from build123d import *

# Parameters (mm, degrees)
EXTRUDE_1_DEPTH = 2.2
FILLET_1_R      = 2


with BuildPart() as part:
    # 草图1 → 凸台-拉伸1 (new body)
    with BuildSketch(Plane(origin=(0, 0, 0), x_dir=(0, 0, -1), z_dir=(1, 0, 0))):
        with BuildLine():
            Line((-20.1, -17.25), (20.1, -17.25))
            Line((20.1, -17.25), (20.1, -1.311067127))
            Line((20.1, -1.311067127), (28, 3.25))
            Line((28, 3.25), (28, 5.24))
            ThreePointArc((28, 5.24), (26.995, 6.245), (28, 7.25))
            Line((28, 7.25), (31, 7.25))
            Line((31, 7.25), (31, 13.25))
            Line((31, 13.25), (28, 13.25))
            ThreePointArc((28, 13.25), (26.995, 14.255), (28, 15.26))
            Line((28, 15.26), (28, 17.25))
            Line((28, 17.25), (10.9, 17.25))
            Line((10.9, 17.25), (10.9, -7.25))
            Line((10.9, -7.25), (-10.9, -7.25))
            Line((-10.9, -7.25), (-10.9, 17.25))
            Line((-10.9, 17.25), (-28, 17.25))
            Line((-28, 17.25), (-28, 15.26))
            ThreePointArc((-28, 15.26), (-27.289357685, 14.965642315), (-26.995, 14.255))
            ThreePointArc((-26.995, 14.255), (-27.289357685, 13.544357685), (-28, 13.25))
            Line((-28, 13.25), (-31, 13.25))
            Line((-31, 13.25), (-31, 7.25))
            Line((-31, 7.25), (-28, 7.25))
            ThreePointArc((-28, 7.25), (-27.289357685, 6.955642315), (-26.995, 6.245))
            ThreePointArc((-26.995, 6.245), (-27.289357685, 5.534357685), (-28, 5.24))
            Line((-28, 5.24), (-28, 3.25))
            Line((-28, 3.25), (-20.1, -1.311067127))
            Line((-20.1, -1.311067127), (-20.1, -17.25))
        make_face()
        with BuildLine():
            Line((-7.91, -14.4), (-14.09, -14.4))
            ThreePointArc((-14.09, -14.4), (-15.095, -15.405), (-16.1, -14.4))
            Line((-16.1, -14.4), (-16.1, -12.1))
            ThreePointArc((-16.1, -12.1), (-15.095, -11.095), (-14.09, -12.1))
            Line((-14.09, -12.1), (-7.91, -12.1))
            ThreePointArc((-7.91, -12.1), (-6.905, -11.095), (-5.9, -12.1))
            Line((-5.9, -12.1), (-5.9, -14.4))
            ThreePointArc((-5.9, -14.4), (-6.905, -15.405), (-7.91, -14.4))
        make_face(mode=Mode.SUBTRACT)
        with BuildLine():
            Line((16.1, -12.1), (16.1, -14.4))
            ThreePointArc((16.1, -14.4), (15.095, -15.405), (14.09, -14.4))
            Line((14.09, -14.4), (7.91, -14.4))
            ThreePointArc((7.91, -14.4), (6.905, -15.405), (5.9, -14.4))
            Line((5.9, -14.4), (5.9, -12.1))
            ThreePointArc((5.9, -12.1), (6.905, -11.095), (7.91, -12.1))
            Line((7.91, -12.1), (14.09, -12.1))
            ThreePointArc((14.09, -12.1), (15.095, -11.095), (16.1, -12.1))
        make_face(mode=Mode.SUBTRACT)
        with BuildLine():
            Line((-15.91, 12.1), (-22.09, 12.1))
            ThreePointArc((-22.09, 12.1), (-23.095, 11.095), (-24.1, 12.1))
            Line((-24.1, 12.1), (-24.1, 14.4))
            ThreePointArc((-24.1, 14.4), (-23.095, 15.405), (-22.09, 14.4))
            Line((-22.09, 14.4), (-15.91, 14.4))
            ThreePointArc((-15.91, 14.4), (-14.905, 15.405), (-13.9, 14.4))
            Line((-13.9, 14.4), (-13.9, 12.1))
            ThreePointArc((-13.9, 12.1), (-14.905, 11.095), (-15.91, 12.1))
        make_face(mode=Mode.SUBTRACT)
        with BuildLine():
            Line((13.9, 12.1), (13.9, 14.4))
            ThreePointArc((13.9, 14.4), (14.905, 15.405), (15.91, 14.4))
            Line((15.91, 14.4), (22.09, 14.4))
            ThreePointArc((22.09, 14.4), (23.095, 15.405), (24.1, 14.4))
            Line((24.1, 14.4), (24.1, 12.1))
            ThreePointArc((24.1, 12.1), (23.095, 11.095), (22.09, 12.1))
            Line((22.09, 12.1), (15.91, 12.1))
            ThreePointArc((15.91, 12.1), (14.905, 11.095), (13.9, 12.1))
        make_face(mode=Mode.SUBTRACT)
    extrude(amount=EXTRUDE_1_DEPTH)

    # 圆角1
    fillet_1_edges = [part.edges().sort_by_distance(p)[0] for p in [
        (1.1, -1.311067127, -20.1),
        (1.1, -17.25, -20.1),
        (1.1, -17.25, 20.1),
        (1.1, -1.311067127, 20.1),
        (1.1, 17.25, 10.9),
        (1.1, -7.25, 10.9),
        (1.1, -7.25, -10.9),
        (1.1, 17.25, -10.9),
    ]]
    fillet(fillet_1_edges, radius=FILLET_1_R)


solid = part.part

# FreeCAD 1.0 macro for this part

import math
import FreeCAD as App
import Part
import Sketcher
from FreeCAD import Vector
Q = App.Units.Quantity


def edges_at(feature, points):
    """Names of the edges that pass closest to the given points."""
    edges = feature.Shape.Edges
    near = lambda p: min(range(len(edges)), key=lambda i: edges[i].distToShape(Part.Vertex(*p))[0])
    return sorted({f"Edge{near(p) + 1}" for p in points})

doc = App.newDocument("Part")
body = doc.addObject("PartDesign::Body", "Body")

# Sketch on YZ plane
sketch1 = body.newObject("Sketcher::SketchObject", "Sketch")
sketch1.AttachmentSupport = (doc.getObject("YZ_Plane"), [""])
sketch1.MapMode = "FlatFace"
sketch1.addGeometry([
    Part.LineSegment(Vector(-17.25, 20.1, 0), Vector(-17.25, -20.1, 0)),  # 0
    Part.LineSegment(Vector(-17.25, -20.1, 0), Vector(-1.311067, -20.1, 0)),  # 1
    Part.LineSegment(Vector(-1.311067, -20.1, 0), Vector(3.25, -28, 0)),  # 2
    Part.LineSegment(Vector(3.25, -28, 0), Vector(5.24, -28, 0)),  # 3
    Part.ArcOfCircle(Part.Circle(Vector(6.245, -28, 0), Vector(0, 0, 1), 1.005), math.radians(0), math.radians(180)),  # 4
    Part.LineSegment(Vector(7.25, -28, 0), Vector(7.25, -31, 0)),  # 5
    Part.LineSegment(Vector(7.25, -31, 0), Vector(13.25, -31, 0)),  # 6
    Part.LineSegment(Vector(13.25, -31, 0), Vector(13.25, -28, 0)),  # 7
    Part.ArcOfCircle(Part.Circle(Vector(14.255, -28, 0), Vector(0, 0, 1), 1.005), math.radians(0), math.radians(180)),  # 8
    Part.LineSegment(Vector(15.26, -28, 0), Vector(17.25, -28, 0)),  # 9
    Part.LineSegment(Vector(17.25, -28, 0), Vector(17.25, -10.9, 0)),  # 10
    Part.LineSegment(Vector(17.25, -10.9, 0), Vector(-7.25, -10.9, 0)),  # 11
    Part.LineSegment(Vector(-7.25, -10.9, 0), Vector(-7.25, 10.9, 0)),  # 12
    Part.LineSegment(Vector(-7.25, 10.9, 0), Vector(17.25, 10.9, 0)),  # 13
    Part.LineSegment(Vector(17.25, 10.9, 0), Vector(17.25, 28, 0)),  # 14
    Part.LineSegment(Vector(17.25, 28, 0), Vector(15.26, 28, 0)),  # 15
    Part.ArcOfCircle(Part.Circle(Vector(14.255, 28, 0), Vector(0, 0, 1), 1.005), math.radians(-90), math.radians(0)),  # 16
    Part.ArcOfCircle(Part.Circle(Vector(14.255, 28, 0), Vector(0, 0, 1), 1.005), math.radians(180), math.radians(270)),  # 17
    Part.LineSegment(Vector(13.25, 28, 0), Vector(13.25, 31, 0)),  # 18
    Part.LineSegment(Vector(13.25, 31, 0), Vector(7.25, 31, 0)),  # 19
    Part.LineSegment(Vector(7.25, 31, 0), Vector(7.25, 28, 0)),  # 20
    Part.ArcOfCircle(Part.Circle(Vector(6.245, 28, 0), Vector(0, 0, 1), 1.005), math.radians(-90), math.radians(0)),  # 21
    Part.ArcOfCircle(Part.Circle(Vector(6.245, 28, 0), Vector(0, 0, 1), 1.005), math.radians(180), math.radians(270)),  # 22
    Part.LineSegment(Vector(5.24, 28, 0), Vector(3.25, 28, 0)),  # 23
    Part.LineSegment(Vector(3.25, 28, 0), Vector(-1.311067, 20.1, 0)),  # 24
    Part.LineSegment(Vector(-1.311067, 20.1, 0), Vector(-17.25, 20.1, 0)),  # 25
    Part.ArcOfCircle(Part.Circle(Vector(-14.4, 6.905, 0), Vector(0, 0, 1), 1.005), math.radians(90), math.radians(270)),  # 26
    Part.LineSegment(Vector(-14.4, 7.91, 0), Vector(-14.4, 14.09, 0)),  # 27
    Part.ArcOfCircle(Part.Circle(Vector(-14.4, 15.095, 0), Vector(0, 0, 1), 1.005), math.radians(90), math.radians(270)),  # 28
    Part.LineSegment(Vector(-14.4, 16.1, 0), Vector(-12.1, 16.1, 0)),  # 29
    Part.ArcOfCircle(Part.Circle(Vector(-12.1, 15.095, 0), Vector(0, 0, 1), 1.005), math.radians(-90), math.radians(90)),  # 30
    Part.LineSegment(Vector(-12.1, 14.09, 0), Vector(-12.1, 7.91, 0)),  # 31
    Part.ArcOfCircle(Part.Circle(Vector(-12.1, 6.905, 0), Vector(0, 0, 1), 1.005), math.radians(-90), math.radians(90)),  # 32
    Part.LineSegment(Vector(-12.1, 5.9, 0), Vector(-14.4, 5.9, 0)),  # 33
    Part.ArcOfCircle(Part.Circle(Vector(-12.1, -15.095, 0), Vector(0, 0, 1), 1.005), math.radians(-90), math.radians(90)),  # 34
    Part.LineSegment(Vector(-12.1, -16.1, 0), Vector(-14.4, -16.1, 0)),  # 35
    Part.ArcOfCircle(Part.Circle(Vector(-14.4, -15.095, 0), Vector(0, 0, 1), 1.005), math.radians(90), math.radians(270)),  # 36
    Part.LineSegment(Vector(-14.4, -14.09, 0), Vector(-14.4, -7.91, 0)),  # 37
    Part.ArcOfCircle(Part.Circle(Vector(-14.4, -6.905, 0), Vector(0, 0, 1), 1.005), math.radians(90), math.radians(270)),  # 38
    Part.LineSegment(Vector(-14.4, -5.9, 0), Vector(-12.1, -5.9, 0)),  # 39
    Part.ArcOfCircle(Part.Circle(Vector(-12.1, -6.905, 0), Vector(0, 0, 1), 1.005), math.radians(-90), math.radians(90)),  # 40
    Part.LineSegment(Vector(-12.1, -7.91, 0), Vector(-12.1, -14.09, 0)),  # 41
    Part.ArcOfCircle(Part.Circle(Vector(12.1, 14.905, 0), Vector(0, 0, 1), 1.005), math.radians(90), math.radians(270)),  # 42
    Part.LineSegment(Vector(12.1, 15.91, 0), Vector(12.1, 22.09, 0)),  # 43
    Part.ArcOfCircle(Part.Circle(Vector(12.1, 23.095, 0), Vector(0, 0, 1), 1.005), math.radians(90), math.radians(270)),  # 44
    Part.LineSegment(Vector(12.1, 24.1, 0), Vector(14.4, 24.1, 0)),  # 45
    Part.ArcOfCircle(Part.Circle(Vector(14.4, 23.095, 0), Vector(0, 0, 1), 1.005), math.radians(-90), math.radians(90)),  # 46
    Part.LineSegment(Vector(14.4, 22.09, 0), Vector(14.4, 15.91, 0)),  # 47
    Part.ArcOfCircle(Part.Circle(Vector(14.4, 14.905, 0), Vector(0, 0, 1), 1.005), math.radians(-90), math.radians(90)),  # 48
    Part.LineSegment(Vector(14.4, 13.9, 0), Vector(12.1, 13.9, 0)),  # 49
    Part.ArcOfCircle(Part.Circle(Vector(12.1, -14.905, 0), Vector(0, 0, 1), 1.005), math.radians(90), math.radians(270)),  # 50
    Part.LineSegment(Vector(12.1, -13.9, 0), Vector(14.4, -13.9, 0)),  # 51
    Part.ArcOfCircle(Part.Circle(Vector(14.4, -14.905, 0), Vector(0, 0, 1), 1.005), math.radians(-90), math.radians(90)),  # 52
    Part.LineSegment(Vector(14.4, -15.91, 0), Vector(14.4, -22.09, 0)),  # 53
    Part.ArcOfCircle(Part.Circle(Vector(14.4, -23.095, 0), Vector(0, 0, 1), 1.005), math.radians(-90), math.radians(90)),  # 54
    Part.LineSegment(Vector(14.4, -24.1, 0), Vector(12.1, -24.1, 0)),  # 55
    Part.ArcOfCircle(Part.Circle(Vector(12.1, -23.095, 0), Vector(0, 0, 1), 1.005), math.radians(90), math.radians(270)),  # 56
    Part.LineSegment(Vector(12.1, -22.09, 0), Vector(12.1, -15.91, 0)),  # 57
], False)
sketch1.addConstraint([
    Sketcher.Constraint("Coincident", 0, 2, 1, 1),
    Sketcher.Constraint("Coincident", 1, 2, 2, 1),
    Sketcher.Constraint("Coincident", 2, 2, 3, 1),
    Sketcher.Constraint("Coincident", 3, 2, 4, 2),
    Sketcher.Constraint("Tangent", 4, 1, 5, 1),
    Sketcher.Constraint("Coincident", 5, 2, 6, 1),
    Sketcher.Constraint("Coincident", 6, 2, 7, 1),
    Sketcher.Constraint("Tangent", 7, 2, 8, 2),
    Sketcher.Constraint("Coincident", 8, 1, 9, 1),
    Sketcher.Constraint("Coincident", 9, 2, 10, 1),
    Sketcher.Constraint("Coincident", 10, 2, 11, 1),
    Sketcher.Constraint("Coincident", 11, 2, 12, 1),
    Sketcher.Constraint("Coincident", 12, 2, 13, 1),
    Sketcher.Constraint("Coincident", 13, 2, 14, 1),
    Sketcher.Constraint("Coincident", 14, 2, 15, 1),
    Sketcher.Constraint("Coincident", 15, 2, 16, 2),
    Sketcher.Constraint("Tangent", 16, 1, 17, 2),
    Sketcher.Constraint("Tangent", 17, 1, 18, 1),
    Sketcher.Constraint("Coincident", 18, 2, 19, 1),
    Sketcher.Constraint("Coincident", 19, 2, 20, 1),
    Sketcher.Constraint("Tangent", 20, 2, 21, 2),
    Sketcher.Constraint("Tangent", 21, 1, 22, 2),
    Sketcher.Constraint("Coincident", 22, 1, 23, 1),
    Sketcher.Constraint("Coincident", 23, 2, 24, 1),
    Sketcher.Constraint("Coincident", 24, 2, 25, 1),
    Sketcher.Constraint("Coincident", 25, 2, 0, 1),
    Sketcher.Constraint("Coincident", 26, 1, 27, 1),
    Sketcher.Constraint("Coincident", 27, 2, 28, 2),
    Sketcher.Constraint("Tangent", 28, 1, 29, 1),
    Sketcher.Constraint("Tangent", 29, 2, 30, 2),
    Sketcher.Constraint("Coincident", 30, 1, 31, 1),
    Sketcher.Constraint("Coincident", 31, 2, 32, 2),
    Sketcher.Constraint("Tangent", 32, 1, 33, 1),
    Sketcher.Constraint("Tangent", 33, 2, 26, 2),
    Sketcher.Constraint("Tangent", 34, 1, 35, 1),
    Sketcher.Constraint("Tangent", 35, 2, 36, 2),
    Sketcher.Constraint("Coincident", 36, 1, 37, 1),
    Sketcher.Constraint("Coincident", 37, 2, 38, 2),
    Sketcher.Constraint("Tangent", 38, 1, 39, 1),
    Sketcher.Constraint("Tangent", 39, 2, 40, 2),
    Sketcher.Constraint("Coincident", 40, 1, 41, 1),
    Sketcher.Constraint("Coincident", 41, 2, 34, 2),
    Sketcher.Constraint("Coincident", 42, 1, 43, 1),
    Sketcher.Constraint("Coincident", 43, 2, 44, 2),
    Sketcher.Constraint("Tangent", 44, 1, 45, 1),
    Sketcher.Constraint("Tangent", 45, 2, 46, 2),
    Sketcher.Constraint("Coincident", 46, 1, 47, 1),
    Sketcher.Constraint("Coincident", 47, 2, 48, 2),
    Sketcher.Constraint("Tangent", 48, 1, 49, 1),
    Sketcher.Constraint("Tangent", 49, 2, 42, 2),
    Sketcher.Constraint("Tangent", 50, 1, 51, 1),
    Sketcher.Constraint("Tangent", 51, 2, 52, 2),
    Sketcher.Constraint("Coincident", 52, 1, 53, 1),
    Sketcher.Constraint("Coincident", 53, 2, 54, 2),
    Sketcher.Constraint("Tangent", 54, 1, 55, 1),
    Sketcher.Constraint("Tangent", 55, 2, 56, 2),
    Sketcher.Constraint("Coincident", 56, 1, 57, 1),
    Sketcher.Constraint("Coincident", 57, 2, 50, 2),
    Sketcher.Constraint("Vertical", 0),
    Sketcher.Constraint("Horizontal", 1),
    Sketcher.Constraint("Horizontal", 3),
    Sketcher.Constraint("Vertical", 5),
    Sketcher.Constraint("Horizontal", 6),
    Sketcher.Constraint("Vertical", 7),
    Sketcher.Constraint("Horizontal", 9),
    Sketcher.Constraint("Vertical", 10),
    Sketcher.Constraint("Horizontal", 11),
    Sketcher.Constraint("Vertical", 12),
    Sketcher.Constraint("Horizontal", 13),
    Sketcher.Constraint("Vertical", 14),
    Sketcher.Constraint("Horizontal", 15),
    Sketcher.Constraint("Vertical", 18),
    Sketcher.Constraint("Horizontal", 19),
    Sketcher.Constraint("Vertical", 20),
    Sketcher.Constraint("Horizontal", 23),
    Sketcher.Constraint("Horizontal", 25),
    Sketcher.Constraint("Vertical", 27),
    Sketcher.Constraint("Horizontal", 29),
    Sketcher.Constraint("Vertical", 31),
    Sketcher.Constraint("Horizontal", 33),
    Sketcher.Constraint("Horizontal", 35),
    Sketcher.Constraint("Vertical", 37),
    Sketcher.Constraint("Horizontal", 39),
    Sketcher.Constraint("Vertical", 41),
    Sketcher.Constraint("Vertical", 43),
    Sketcher.Constraint("Horizontal", 45),
    Sketcher.Constraint("Vertical", 47),
    Sketcher.Constraint("Horizontal", 49),
    Sketcher.Constraint("Horizontal", 51),
    Sketcher.Constraint("Vertical", 53),
    Sketcher.Constraint("Horizontal", 55),
    Sketcher.Constraint("Vertical", 57),
    Sketcher.Constraint("Equal", 4, 8),
    Sketcher.Constraint("Equal", 8, 16),
    Sketcher.Constraint("Equal", 16, 17),
    Sketcher.Constraint("Equal", 17, 21),
    Sketcher.Constraint("Equal", 21, 22),
    Sketcher.Constraint("Equal", 22, 26),
    Sketcher.Constraint("Equal", 26, 28),
    Sketcher.Constraint("Equal", 28, 30),
    Sketcher.Constraint("Equal", 30, 32),
    Sketcher.Constraint("Equal", 32, 34),
    Sketcher.Constraint("Equal", 34, 36),
    Sketcher.Constraint("Equal", 36, 38),
    Sketcher.Constraint("Equal", 38, 40),
    Sketcher.Constraint("Equal", 40, 42),
    Sketcher.Constraint("Equal", 42, 44),
    Sketcher.Constraint("Equal", 44, 46),
    Sketcher.Constraint("Equal", 46, 48),
    Sketcher.Constraint("Equal", 48, 50),
    Sketcher.Constraint("Equal", 50, 52),
    Sketcher.Constraint("Equal", 52, 54),
    Sketcher.Constraint("Equal", 54, 56),
    Sketcher.Constraint("Symmetric", 8, 3, 16, 3, -1),
    Sketcher.Constraint("Symmetric", 4, 3, 21, 3, -1),
    Sketcher.Constraint("Symmetric", 30, 3, 34, 3, -1),
    Sketcher.Constraint("Symmetric", 26, 3, 38, 3, -1),
    Sketcher.Constraint("Symmetric", 42, 3, 50, 3, -1),
    Sketcher.Constraint("Symmetric", 46, 3, 54, 3, -1),
    Sketcher.Constraint("Symmetric", 10, 2, 13, 2, -1),
    Sketcher.Constraint("Symmetric", 2, 2, 23, 2, -1),
    Sketcher.Constraint("Symmetric", 1, 2, 24, 2, -1),
    Sketcher.Constraint("Horizontal", 4, 3, 8, 3),
    Sketcher.Constraint("Horizontal", 8, 3, 2, 2),
    Sketcher.Constraint("Horizontal", 7, 2, 8, 1),
    Sketcher.Constraint("Horizontal", 22, 3, 14, 2),
    Sketcher.Constraint("Vertical", 26, 3, 28, 3),
    Sketcher.Constraint("Vertical", 30, 3, 32, 3),
    Sketcher.Constraint("Vertical", 28, 3, 36, 3),
    Sketcher.Constraint("Vertical", 34, 3, 40, 3),
    Sketcher.Constraint("Vertical", 42, 3, 44, 3),
    Sketcher.Constraint("Vertical", 46, 3, 48, 3),
    Sketcher.Constraint("Vertical", 48, 3, 52, 3),
    Sketcher.Constraint("Vertical", 50, 3, 56, 3),
    Sketcher.Constraint("Vertical", 17, 3, 16, 1),
    Sketcher.Constraint("Vertical", 22, 3, 21, 1),
    Sketcher.Constraint("Vertical", 38, 3, 26, 1),
    Sketcher.Constraint("Vertical", 29, 2, 30, 1),
    Sketcher.Constraint("Vertical", 35, 2, 36, 1),
    Sketcher.Constraint("Vertical", 39, 2, 40, 1),
    Sketcher.Constraint("Vertical", 56, 3, 42, 1),
    Sketcher.Constraint("Vertical", 45, 2, 46, 1),
    Sketcher.Constraint("Vertical", 51, 2, 52, 1),
    Sketcher.Constraint("Vertical", 55, 2, 56, 1),
    Sketcher.Constraint("Equal", 3, 9),
    Sketcher.Constraint("Equal", 39, 45),
    Sketcher.Constraint("Equal", 7, 18),
    Sketcher.Constraint("Equal", 41, 43),
    Sketcher.Constraint("DistanceX", 6, 1, 6, 2, 6.0),
    Sketcher.Constraint("DistanceY", 5, 2, 5, 1, 3.0),
    Sketcher.Constraint("Angle", 2, Q("-60 deg")),
    Sketcher.Constraint("DistanceX", 11, 2, 11, 1, 24.5),
    Sketcher.Constraint("DistanceX", 29, 1, 29, 2, 2.3),
    Sketcher.Constraint("DistanceY", 0, 2, 0, 1, 40.2),
    Sketcher.Constraint("DistanceY", 10, 1, 10, 2, 17.1),
    Sketcher.Constraint("DistanceY", 12, 1, 12, 2, 21.8),
    Sketcher.Constraint("Radius", 4, 1.005),
    Sketcher.Constraint("DistanceX", 3, 1, 3, 2, 1.99),
    Sketcher.Constraint("DistanceY", 27, 1, 27, 2, 6.18),
    Sketcher.Constraint("DistanceX", 26, 3, -1, 1, 14.4),
    Sketcher.Constraint("DistanceX", -1, 1, 42, 3, 12.1),
    Sketcher.Constraint("DistanceY", -1, 1, 28, 1, 16.1),
    Sketcher.Constraint("DistanceY", -1, 1, 44, 1, 24.1),
    Sketcher.Constraint("DistanceX", 0, 2, -1, 1, 17.25),
    Sketcher.Constraint("DistanceX", -1, 1, 2, 2, 3.25),
])
pad1 = body.newObject("PartDesign::Pad", "Pad")
pad1.Profile = sketch1
pad1.Length = 2.2
doc.recompute()

fillet = body.newObject("PartDesign::Fillet", "Fillet")
fillet.Base = (pad1, edges_at(pad1, [
    (1.1, -1.311, -20.1),
    (1.1, -17.25, -20.1),
    (1.1, -17.25, 20.1),
    (1.1, -1.311, 20.1),
    (1.1, 17.25, 10.9),
    (1.1, -7.25, 10.9),
    (1.1, -7.25, -10.9),
    (1.1, 17.25, -10.9),
]))
fillet.Radius = 2

doc.recompute()
